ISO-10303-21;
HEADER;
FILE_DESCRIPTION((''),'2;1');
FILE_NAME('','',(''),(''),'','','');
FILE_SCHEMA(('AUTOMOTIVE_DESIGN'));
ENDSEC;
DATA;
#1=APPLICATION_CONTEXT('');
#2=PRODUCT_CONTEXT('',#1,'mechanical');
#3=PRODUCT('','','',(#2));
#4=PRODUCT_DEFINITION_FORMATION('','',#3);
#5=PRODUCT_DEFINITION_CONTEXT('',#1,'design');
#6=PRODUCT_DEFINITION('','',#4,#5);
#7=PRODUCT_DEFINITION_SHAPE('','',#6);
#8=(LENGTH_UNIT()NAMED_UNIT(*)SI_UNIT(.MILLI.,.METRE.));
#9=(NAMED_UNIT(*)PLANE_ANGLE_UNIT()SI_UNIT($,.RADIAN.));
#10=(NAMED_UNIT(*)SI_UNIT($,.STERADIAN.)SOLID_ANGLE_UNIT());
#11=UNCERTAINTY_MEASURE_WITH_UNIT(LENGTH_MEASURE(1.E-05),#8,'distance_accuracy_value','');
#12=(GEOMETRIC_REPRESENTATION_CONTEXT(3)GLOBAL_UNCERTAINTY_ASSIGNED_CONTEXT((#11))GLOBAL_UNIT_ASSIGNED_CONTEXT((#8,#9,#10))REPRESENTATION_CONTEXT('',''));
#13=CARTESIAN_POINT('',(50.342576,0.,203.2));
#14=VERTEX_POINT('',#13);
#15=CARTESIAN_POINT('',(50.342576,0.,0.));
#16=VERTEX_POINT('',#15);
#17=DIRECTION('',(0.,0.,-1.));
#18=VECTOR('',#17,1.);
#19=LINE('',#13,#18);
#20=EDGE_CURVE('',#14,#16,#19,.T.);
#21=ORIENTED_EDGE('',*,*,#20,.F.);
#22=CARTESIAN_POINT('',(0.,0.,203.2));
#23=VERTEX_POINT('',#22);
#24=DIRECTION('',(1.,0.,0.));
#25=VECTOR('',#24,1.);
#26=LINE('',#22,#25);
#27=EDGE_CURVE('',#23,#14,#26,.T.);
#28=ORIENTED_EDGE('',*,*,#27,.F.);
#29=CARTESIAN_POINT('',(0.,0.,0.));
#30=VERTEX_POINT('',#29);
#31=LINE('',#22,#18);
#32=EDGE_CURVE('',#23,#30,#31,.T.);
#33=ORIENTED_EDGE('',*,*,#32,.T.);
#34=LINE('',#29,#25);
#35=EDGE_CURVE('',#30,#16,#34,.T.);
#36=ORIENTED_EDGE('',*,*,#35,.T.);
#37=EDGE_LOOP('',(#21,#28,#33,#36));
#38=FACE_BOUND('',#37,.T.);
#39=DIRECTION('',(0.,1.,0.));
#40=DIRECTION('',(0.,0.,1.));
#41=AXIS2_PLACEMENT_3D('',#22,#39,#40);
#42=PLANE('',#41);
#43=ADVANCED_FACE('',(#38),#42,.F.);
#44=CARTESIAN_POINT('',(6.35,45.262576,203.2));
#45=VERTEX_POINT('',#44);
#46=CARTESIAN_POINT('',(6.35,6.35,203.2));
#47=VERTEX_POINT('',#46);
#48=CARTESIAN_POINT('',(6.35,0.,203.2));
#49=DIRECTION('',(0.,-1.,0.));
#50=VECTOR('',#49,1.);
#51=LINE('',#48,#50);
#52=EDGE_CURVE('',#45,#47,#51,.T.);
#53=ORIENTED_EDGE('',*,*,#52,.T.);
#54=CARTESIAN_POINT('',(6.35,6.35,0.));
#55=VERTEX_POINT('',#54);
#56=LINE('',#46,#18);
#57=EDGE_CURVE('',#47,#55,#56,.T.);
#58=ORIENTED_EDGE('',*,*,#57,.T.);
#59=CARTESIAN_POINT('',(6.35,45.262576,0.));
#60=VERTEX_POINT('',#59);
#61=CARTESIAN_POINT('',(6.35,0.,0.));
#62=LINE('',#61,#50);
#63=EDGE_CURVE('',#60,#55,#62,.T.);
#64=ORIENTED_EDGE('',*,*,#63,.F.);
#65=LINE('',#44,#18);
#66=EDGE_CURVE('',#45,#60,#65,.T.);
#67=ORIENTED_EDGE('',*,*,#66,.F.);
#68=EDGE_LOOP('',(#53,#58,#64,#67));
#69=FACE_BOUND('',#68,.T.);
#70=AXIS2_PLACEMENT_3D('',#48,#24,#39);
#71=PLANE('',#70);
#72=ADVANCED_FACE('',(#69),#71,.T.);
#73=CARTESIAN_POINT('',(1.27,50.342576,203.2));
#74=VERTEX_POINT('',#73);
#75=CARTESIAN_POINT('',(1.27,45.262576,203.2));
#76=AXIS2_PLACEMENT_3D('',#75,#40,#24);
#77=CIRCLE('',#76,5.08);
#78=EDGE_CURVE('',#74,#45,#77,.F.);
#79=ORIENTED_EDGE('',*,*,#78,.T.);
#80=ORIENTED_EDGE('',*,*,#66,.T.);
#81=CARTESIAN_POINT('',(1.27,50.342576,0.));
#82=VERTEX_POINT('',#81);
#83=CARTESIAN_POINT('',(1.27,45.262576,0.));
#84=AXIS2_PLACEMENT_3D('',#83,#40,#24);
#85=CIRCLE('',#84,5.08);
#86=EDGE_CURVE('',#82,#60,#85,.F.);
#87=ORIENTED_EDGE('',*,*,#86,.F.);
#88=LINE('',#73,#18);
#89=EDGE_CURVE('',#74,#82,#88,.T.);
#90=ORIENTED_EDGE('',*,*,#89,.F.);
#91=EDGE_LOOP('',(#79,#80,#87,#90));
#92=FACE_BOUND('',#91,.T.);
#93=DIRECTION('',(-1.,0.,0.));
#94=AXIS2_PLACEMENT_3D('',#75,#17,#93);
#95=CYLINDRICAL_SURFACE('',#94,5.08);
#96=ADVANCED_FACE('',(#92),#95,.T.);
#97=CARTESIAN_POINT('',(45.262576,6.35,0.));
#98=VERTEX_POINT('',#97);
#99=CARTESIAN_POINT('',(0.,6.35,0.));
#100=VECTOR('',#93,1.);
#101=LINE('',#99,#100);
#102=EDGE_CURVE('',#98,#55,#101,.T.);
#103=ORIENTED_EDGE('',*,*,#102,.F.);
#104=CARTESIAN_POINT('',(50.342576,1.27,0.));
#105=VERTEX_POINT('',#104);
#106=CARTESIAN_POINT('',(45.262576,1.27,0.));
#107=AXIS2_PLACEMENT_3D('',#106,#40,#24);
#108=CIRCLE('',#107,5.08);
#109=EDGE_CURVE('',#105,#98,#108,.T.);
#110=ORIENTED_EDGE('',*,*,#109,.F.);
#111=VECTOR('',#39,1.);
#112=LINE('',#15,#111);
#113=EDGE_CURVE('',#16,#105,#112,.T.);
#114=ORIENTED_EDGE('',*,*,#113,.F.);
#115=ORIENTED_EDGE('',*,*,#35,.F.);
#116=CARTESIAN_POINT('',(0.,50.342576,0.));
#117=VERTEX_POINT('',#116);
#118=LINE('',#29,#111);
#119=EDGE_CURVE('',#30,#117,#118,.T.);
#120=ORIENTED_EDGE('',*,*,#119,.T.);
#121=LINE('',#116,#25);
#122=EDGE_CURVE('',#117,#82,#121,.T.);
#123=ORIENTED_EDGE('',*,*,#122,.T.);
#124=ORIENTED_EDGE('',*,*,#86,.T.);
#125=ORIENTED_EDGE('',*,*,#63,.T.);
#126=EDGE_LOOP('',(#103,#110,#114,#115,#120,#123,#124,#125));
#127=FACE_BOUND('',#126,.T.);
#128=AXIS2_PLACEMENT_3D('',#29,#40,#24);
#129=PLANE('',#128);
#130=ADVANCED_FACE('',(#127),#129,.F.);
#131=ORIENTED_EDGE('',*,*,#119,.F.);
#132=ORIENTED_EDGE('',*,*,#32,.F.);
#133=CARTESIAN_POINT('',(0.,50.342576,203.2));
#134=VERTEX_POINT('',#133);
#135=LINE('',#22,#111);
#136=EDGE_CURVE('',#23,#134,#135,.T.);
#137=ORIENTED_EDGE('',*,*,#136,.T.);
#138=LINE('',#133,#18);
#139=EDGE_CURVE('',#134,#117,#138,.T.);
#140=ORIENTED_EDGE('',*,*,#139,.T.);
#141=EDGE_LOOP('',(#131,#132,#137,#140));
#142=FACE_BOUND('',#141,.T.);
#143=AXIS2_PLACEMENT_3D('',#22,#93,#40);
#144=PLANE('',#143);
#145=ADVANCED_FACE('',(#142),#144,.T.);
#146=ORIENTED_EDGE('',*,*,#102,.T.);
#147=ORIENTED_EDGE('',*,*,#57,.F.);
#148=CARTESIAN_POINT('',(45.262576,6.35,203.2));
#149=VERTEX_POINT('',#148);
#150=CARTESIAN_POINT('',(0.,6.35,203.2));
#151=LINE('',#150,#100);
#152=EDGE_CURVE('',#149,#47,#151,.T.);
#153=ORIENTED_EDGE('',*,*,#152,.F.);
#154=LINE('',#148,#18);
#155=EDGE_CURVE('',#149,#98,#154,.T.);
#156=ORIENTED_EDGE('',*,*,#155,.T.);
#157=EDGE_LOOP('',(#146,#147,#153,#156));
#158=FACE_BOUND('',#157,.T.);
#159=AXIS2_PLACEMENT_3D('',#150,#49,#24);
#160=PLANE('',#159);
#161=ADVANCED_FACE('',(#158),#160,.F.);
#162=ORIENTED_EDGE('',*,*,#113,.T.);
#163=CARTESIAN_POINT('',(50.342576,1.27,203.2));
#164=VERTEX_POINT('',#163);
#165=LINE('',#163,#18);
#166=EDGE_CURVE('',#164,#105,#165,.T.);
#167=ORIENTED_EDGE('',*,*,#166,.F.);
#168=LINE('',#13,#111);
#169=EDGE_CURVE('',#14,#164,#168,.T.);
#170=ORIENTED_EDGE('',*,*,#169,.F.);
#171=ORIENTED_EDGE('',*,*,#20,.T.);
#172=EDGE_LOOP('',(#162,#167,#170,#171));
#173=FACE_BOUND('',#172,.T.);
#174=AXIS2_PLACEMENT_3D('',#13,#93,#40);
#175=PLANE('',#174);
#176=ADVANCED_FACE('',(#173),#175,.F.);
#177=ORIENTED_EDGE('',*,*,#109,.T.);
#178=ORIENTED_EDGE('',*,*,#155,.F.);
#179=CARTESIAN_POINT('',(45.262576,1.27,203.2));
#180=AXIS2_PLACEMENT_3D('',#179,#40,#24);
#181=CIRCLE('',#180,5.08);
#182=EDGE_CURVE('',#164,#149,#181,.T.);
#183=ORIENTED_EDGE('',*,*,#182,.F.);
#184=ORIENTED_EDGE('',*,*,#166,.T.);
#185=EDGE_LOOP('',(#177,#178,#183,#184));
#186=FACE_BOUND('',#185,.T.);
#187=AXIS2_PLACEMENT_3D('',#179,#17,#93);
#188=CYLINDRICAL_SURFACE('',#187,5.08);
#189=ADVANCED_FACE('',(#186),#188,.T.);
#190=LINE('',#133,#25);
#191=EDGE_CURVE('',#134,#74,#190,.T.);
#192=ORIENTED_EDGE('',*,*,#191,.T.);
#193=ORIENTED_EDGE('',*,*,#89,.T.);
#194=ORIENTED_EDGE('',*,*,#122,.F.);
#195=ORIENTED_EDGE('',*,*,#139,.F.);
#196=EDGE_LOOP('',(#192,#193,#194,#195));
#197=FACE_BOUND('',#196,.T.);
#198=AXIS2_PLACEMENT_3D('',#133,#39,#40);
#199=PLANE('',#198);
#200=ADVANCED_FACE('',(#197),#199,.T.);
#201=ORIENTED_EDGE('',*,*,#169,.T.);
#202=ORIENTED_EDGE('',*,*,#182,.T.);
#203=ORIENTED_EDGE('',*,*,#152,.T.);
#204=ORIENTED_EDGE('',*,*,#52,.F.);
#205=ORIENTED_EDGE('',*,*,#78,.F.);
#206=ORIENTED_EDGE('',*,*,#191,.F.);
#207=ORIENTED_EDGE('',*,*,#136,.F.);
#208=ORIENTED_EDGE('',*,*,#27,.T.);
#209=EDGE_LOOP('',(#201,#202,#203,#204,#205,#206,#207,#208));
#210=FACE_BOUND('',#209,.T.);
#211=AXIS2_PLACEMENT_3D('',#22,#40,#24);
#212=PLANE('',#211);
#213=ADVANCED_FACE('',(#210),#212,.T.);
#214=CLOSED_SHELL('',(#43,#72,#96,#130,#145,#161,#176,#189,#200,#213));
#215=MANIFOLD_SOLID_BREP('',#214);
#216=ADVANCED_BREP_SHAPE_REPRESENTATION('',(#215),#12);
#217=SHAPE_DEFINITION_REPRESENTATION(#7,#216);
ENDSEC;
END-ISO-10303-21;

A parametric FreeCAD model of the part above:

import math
import FreeCAD as App
import Part
import Sketcher
from FreeCAD import Vector
Q = App.Units.Quantity

doc = App.newDocument("Part")
params = doc.addObject("Spreadsheet::Sheet", "Params")
for row, (alias, value) in enumerate([
    ("sketch1_radius", "0.2 in"),
    ("sketch1_width", "0.05 in"),
    ("pad1_length", "8 in"),
], start=1):
    params.set(f"A{row}", alias)
    params.set(f"B{row}", "=" + value)
    params.setAlias(f"B{row}", alias)

body = doc.addObject("PartDesign::Body", "Body")

# Sketch on XY plane
sketch1 = body.newObject("Sketcher::SketchObject", "Sketch")
sketch1.AttachmentSupport = (doc.getObject("XY_Plane"), [""])
sketch1.MapMode = "FlatFace"
sketch1.addGeometry(Part.ArcOfCircle(Part.Circle(Vector(1.3, 45.3, 0), Vector(0, 0, 1), 5.1), math.radians(0), math.radians(90)), False)
sketch1.addGeometry(Part.LineSegment(Vector(1.3, 50.3, 0), Vector(0, 50.3, 0)), False)
sketch1.addGeometry(Part.LineSegment(Vector(0, 50.3, 0), Vector(0, 0, 0)), False)
sketch1.addGeometry(Part.LineSegment(Vector(0, 0, 0), Vector(50.3, 0, 0)), False)
sketch1.addGeometry(Part.LineSegment(Vector(50.3, 0, 0), Vector(50.3, 1.3, 0)), False)
sketch1.addGeometry(Part.ArcOfCircle(Part.Circle(Vector(45.3, 1.3, 0), Vector(0, 0, 1), 5.1), math.radians(0), math.radians(90)), False)
sketch1.addGeometry(Part.LineSegment(Vector(45.3, 6.3, 0), Vector(6.3, 6.3, 0)), False)
sketch1.addGeometry(Part.LineSegment(Vector(6.3, 6.3, 0), Vector(6.3, 45.3, 0)), False)
sketch1.addConstraint(Sketcher.Constraint("Tangent", 0, 2, 1, 1))
sketch1.addConstraint(Sketcher.Constraint("Coincident", 1, 2, 2, 1))
sketch1.addConstraint(Sketcher.Constraint("Coincident", 2, 2, 3, 1))
sketch1.addConstraint(Sketcher.Constraint("Coincident", 3, 2, 4, 1))
sketch1.addConstraint(Sketcher.Constraint("Tangent", 4, 2, 5, 1))
sketch1.addConstraint(Sketcher.Constraint("Tangent", 5, 2, 6, 1))
sketch1.addConstraint(Sketcher.Constraint("Coincident", 6, 2, 7, 1))
sketch1.addConstraint(Sketcher.Constraint("Tangent", 7, 2, 0, 1))
sketch1.addConstraint(Sketcher.Constraint("Horizontal", 1))
sketch1.addConstraint(Sketcher.Constraint("Vertical", 2))
sketch1.addConstraint(Sketcher.Constraint("Horizontal", 3))
sketch1.addConstraint(Sketcher.Constraint("Vertical", 4))
sketch1.addConstraint(Sketcher.Constraint("Horizontal", 6))
sketch1.addConstraint(Sketcher.Constraint("Vertical", 7))
sketch1.addConstraint(Sketcher.Constraint("Coincident", 2, 2, -1, 1))
sketch1.addConstraint(Sketcher.Constraint("Equal", 0, 5))
sketch1.addConstraint(Sketcher.Constraint("Equal", 3, 2))
sketch1.addConstraint(Sketcher.Constraint("Equal", 1, 4))
sketch1.addConstraint(Sketcher.Constraint("Radius", 0, Q("0.2 in")))
sketch1.addConstraint(Sketcher.Constraint("DistanceX", 1, 2, 1, 1, Q("0.05 in")))
sketch1.addConstraint(Sketcher.Constraint("DistanceX", 3, 1, 3, 2, 50.342576))
sketch1.setExpression("Constraints[18]", "Params.sketch1_radius")
sketch1.setExpression("Constraints[19]", "Params.sketch1_width")
pad1 = body.newObject("PartDesign::Pad", "Pad")
pad1.Profile = sketch1
pad1.setExpression("Length", "Params.pad1_length")

doc.recompute()
